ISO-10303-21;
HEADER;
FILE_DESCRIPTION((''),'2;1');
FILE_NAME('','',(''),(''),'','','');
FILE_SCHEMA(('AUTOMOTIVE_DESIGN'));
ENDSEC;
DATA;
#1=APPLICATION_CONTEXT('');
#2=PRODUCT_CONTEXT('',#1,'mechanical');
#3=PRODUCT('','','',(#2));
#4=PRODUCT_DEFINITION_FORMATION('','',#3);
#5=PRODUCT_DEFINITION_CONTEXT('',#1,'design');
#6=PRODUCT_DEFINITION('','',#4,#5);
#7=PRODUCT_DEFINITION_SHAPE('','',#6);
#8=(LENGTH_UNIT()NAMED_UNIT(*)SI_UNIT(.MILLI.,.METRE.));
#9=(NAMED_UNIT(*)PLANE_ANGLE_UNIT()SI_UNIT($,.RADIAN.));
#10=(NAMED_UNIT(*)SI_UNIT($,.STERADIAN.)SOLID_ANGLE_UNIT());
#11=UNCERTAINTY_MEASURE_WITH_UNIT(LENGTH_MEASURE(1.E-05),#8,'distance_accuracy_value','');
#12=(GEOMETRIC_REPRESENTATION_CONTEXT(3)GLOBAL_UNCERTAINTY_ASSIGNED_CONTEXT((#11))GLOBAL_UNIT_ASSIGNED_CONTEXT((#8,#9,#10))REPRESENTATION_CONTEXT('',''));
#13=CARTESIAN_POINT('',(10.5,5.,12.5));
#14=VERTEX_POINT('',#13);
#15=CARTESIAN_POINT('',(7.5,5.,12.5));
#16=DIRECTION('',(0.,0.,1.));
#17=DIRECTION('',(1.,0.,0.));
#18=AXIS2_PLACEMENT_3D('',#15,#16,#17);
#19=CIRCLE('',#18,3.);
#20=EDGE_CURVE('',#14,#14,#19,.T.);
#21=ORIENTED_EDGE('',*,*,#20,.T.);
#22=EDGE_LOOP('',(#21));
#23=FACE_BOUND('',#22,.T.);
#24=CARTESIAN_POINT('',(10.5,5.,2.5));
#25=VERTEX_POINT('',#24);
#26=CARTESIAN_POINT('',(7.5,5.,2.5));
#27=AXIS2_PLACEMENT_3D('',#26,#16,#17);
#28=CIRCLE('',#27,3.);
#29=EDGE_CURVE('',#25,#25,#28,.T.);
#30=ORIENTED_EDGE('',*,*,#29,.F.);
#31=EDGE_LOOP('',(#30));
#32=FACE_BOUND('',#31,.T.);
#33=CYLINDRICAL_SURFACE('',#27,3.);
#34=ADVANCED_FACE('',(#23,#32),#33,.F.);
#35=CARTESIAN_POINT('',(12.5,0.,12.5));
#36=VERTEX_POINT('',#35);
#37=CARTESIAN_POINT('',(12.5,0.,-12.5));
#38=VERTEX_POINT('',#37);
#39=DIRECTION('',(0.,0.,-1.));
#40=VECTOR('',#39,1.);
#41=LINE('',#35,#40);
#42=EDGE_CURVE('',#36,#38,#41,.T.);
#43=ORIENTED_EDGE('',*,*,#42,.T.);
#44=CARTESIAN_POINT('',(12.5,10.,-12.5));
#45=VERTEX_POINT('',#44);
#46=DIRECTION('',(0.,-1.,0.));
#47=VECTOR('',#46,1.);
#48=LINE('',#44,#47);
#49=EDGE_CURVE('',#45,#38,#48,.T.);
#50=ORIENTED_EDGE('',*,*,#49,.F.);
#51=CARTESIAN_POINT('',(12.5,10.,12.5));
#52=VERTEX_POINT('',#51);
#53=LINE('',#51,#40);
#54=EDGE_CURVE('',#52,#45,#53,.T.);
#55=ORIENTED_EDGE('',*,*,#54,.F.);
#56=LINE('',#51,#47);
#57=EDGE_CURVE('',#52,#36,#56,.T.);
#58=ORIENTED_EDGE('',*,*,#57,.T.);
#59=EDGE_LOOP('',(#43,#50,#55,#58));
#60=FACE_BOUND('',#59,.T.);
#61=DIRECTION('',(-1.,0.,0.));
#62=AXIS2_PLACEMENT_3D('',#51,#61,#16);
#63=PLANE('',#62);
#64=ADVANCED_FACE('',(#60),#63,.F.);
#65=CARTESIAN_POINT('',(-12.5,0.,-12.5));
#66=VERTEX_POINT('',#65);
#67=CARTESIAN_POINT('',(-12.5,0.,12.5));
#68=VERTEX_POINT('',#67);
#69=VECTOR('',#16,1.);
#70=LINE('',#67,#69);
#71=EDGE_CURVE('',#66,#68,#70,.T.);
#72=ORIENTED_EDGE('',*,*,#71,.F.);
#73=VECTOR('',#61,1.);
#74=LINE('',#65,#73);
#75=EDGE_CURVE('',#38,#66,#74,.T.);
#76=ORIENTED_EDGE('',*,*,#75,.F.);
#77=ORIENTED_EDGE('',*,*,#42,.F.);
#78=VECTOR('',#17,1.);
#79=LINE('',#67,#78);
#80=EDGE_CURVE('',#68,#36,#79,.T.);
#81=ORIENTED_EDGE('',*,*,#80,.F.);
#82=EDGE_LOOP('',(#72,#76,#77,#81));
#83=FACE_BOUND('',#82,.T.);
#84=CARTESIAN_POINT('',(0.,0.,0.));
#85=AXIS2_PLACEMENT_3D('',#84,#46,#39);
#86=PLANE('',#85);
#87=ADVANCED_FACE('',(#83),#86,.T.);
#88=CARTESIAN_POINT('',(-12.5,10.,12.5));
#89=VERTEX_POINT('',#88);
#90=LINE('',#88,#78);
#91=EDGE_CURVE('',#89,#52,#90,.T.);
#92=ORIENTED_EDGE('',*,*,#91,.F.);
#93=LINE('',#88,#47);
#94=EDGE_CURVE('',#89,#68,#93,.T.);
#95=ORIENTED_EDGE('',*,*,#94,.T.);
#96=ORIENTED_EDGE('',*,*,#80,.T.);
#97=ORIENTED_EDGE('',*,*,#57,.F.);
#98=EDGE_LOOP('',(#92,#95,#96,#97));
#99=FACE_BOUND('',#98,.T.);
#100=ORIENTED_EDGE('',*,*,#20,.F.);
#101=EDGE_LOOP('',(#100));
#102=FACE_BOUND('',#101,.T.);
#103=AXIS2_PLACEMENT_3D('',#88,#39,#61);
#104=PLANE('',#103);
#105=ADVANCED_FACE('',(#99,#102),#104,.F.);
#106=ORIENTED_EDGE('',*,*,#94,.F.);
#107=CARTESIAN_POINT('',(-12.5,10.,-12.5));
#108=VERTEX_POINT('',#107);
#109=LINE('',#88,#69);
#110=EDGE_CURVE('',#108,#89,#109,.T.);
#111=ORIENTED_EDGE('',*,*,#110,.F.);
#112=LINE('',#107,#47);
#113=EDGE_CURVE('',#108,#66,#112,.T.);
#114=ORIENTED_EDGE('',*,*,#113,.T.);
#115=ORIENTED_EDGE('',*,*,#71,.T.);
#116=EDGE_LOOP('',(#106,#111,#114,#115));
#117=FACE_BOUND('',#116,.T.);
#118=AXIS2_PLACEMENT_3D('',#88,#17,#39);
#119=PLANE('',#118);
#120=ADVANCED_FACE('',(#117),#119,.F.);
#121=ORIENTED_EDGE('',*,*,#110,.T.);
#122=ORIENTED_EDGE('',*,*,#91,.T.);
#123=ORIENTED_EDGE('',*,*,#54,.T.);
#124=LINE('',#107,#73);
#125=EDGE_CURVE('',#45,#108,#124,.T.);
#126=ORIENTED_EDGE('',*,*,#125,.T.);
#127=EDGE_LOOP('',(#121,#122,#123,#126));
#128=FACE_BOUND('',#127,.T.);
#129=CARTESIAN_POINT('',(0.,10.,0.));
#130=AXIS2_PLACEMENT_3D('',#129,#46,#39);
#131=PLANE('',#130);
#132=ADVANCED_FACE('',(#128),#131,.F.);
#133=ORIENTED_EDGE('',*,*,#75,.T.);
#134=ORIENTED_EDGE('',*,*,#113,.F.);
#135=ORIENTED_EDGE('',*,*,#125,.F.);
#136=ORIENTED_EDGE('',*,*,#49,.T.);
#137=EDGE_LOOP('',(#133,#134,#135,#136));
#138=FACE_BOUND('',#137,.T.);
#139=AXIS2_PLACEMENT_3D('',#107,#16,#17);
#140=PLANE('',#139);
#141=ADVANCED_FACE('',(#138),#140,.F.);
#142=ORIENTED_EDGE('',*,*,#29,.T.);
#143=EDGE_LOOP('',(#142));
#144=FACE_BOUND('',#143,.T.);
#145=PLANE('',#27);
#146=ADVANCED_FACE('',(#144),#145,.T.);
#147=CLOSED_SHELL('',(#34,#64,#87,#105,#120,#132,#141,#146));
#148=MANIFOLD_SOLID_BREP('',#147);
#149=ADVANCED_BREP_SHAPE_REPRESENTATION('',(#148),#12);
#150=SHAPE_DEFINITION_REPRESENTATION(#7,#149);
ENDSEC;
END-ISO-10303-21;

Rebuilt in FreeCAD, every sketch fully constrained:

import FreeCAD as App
import Part
import Sketcher

V = App.Vector
Q = App.Units.Quantity

doc = App.newDocument("Part")
body = doc.addObject("PartDesign::Body", "Body")

# Sketch on XZ plane
sketch1 = body.newObject("Sketcher::SketchObject", "Sketch")
sketch1.AttachmentSupport = (doc.getObject("XZ_Plane"), [""])
sketch1.MapMode = "FlatFace"
sketch1.addGeometry(Part.LineSegment(V(-12.5, -12.5, 0), V(-12.5, 12.5, 0)), False)
sketch1.addGeometry(Part.LineSegment(V(-12.5, 12.5, 0), V(12.5, 12.5, 0)), False)
sketch1.addGeometry(Part.LineSegment(V(12.5, 12.5, 0), V(12.5, -12.5, 0)), False)
sketch1.addGeometry(Part.LineSegment(V(12.5, -12.5, 0), V(-12.5, -12.5, 0)), False)
sketch1.addConstraint(Sketcher.Constraint("Coincident", 0, 2, 1, 1))
sketch1.addConstraint(Sketcher.Constraint("Coincident", 1, 2, 2, 1))
sketch1.addConstraint(Sketcher.Constraint("Coincident", 2, 2, 3, 1))
sketch1.addConstraint(Sketcher.Constraint("Coincident", 3, 2, 0, 1))
sketch1.addConstraint(Sketcher.Constraint("Vertical", 0))
sketch1.addConstraint(Sketcher.Constraint("Horizontal", 1))
sketch1.addConstraint(Sketcher.Constraint("Vertical", 2))
sketch1.addConstraint(Sketcher.Constraint("Horizontal", 3))
sketch1.addConstraint(Sketcher.Constraint("Symmetric", 0, 2, 2, 2, -1, 1))
sketch1.addConstraint(Sketcher.Constraint("Equal", 3, 0))
sketch1.addConstraint(Sketcher.Constraint("DistanceX", 1, 1, 1, 2, Q("25 mm")))
pad1 = body.newObject("PartDesign::Pad", "Pad")
pad1.Profile = sketch1
pad1.Length = 10
pad1.Reversed = True

# Sketch on XY plane
sketch2 = body.newObject("Sketcher::SketchObject", "Sketch001")
sketch2.AttachmentSupport = (doc.getObject("XY_Plane"), [""])
sketch2.MapMode = "FlatFace"
sketch2.AttachmentOffset = App.Placement(V(0, 0, 12.5), App.Rotation())
sketch2.addGeometry(Part.Circle(V(7.5, 5, 0), V(0, 0, 1), 3), False)
sketch2.addConstraint(Sketcher.Constraint("Diameter", 0, Q("6 mm")))
sketch2.addConstraint(Sketcher.Constraint("DistanceY", -1, 1, 0, 3, Q("5 mm")))
sketch2.addConstraint(Sketcher.Constraint("DistanceX", -1, 1, 0, 3, Q("7.5 mm")))
pocket1 = body.newObject("PartDesign::Pocket", "Pocket")
pocket1.Profile = sketch2
pocket1.Length = 10

doc.recompute()
